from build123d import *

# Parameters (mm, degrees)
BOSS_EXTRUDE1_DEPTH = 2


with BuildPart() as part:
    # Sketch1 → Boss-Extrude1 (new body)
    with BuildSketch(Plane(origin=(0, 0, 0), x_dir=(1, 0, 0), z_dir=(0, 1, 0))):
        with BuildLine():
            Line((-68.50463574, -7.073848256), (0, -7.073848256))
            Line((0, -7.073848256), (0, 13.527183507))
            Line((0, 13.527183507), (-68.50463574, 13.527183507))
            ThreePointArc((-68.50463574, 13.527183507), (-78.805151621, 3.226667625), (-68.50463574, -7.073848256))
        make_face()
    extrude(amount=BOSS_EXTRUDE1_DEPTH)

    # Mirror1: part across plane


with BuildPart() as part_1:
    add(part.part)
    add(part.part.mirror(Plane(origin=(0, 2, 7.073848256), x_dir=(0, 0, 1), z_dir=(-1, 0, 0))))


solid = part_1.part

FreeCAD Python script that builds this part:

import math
import FreeCAD as App
import Part
import Sketcher

V = App.Vector
Q = App.Units.Quantity

doc = App.newDocument("Part")
body = doc.addObject("PartDesign::Body", "Body")

sketch1 = body.newObject("Sketcher::SketchObject", "Sketch")
sketch1.AttachmentSupport = (doc.getObject("XZ_Plane"), [""])
sketch1.MapMode = "FlatFace"
sketch1.addGeometry(Part.LineSegment(V(-69, 7, 0), V(0, 7, 0)), False)
sketch1.addGeometry(Part.LineSegment(V(0, 7, 0), V(0, -14, 0)), False)
sketch1.addGeometry(Part.LineSegment(V(0, -14, 0), V(-69, -14, 0)), False)
sketch1.addGeometry(Part.ArcOfCircle(Part.Circle(V(-69, -3, 0), V(0, 0, 1), 10), math.radians(90), math.radians(270)), False)
sketch1.addConstraint(Sketcher.Constraint("Coincident", 0, 2, 1, 1))
sketch1.addConstraint(Sketcher.Constraint("Coincident", 1, 2, 2, 1))
sketch1.addConstraint(Sketcher.Constraint("Tangent", 2, 2, 3, 2))
sketch1.addConstraint(Sketcher.Constraint("Tangent", 3, 1, 0, 1))
sketch1.addConstraint(Sketcher.Constraint("Horizontal", 0))
sketch1.addConstraint(Sketcher.Constraint("Vertical", 1))
sketch1.addConstraint(Sketcher.Constraint("Horizontal", 2))
sketch1.addConstraint(Sketcher.Constraint("PointOnObject", 0, 2, -2))
sketch1.addConstraint(Sketcher.Constraint("Radius", 3, Q("10.300516 mm")))
sketch1.addConstraint(Sketcher.Constraint("DistanceX", 0, 1, 0, 2, Q("68.504636 mm")))
sketch1.addConstraint(Sketcher.Constraint("DistanceY", -1, 1, 0, 2, Q("7.073848 mm")))
pad1 = body.newObject("PartDesign::Pad", "Pad")
pad1.Profile = sketch1
pad1.Length = 2
pad1.Reversed = True
body2 = doc.addObject("PartDesign::Body", "Body001")
doc.recompute()

body2.BaseFeature = body
doc.recompute()

mirroring = doc.addObject("Part::Mirroring", "Mirroring")
mirroring.Source = body
mirroring.Base = V(0, 2, 7.073848)
mirroring.Normal = V(-1, 0, 0)
body3 = doc.addObject("PartDesign::Body", "Body002")
body3.BaseFeature = mirroring
boolean = body2.newObject("PartDesign::Boolean", "Boolean")
boolean.Type = "Fuse"
boolean.addObjects([body3])
doc.recompute()
mirroring.Visibility = False

doc.recompute()
